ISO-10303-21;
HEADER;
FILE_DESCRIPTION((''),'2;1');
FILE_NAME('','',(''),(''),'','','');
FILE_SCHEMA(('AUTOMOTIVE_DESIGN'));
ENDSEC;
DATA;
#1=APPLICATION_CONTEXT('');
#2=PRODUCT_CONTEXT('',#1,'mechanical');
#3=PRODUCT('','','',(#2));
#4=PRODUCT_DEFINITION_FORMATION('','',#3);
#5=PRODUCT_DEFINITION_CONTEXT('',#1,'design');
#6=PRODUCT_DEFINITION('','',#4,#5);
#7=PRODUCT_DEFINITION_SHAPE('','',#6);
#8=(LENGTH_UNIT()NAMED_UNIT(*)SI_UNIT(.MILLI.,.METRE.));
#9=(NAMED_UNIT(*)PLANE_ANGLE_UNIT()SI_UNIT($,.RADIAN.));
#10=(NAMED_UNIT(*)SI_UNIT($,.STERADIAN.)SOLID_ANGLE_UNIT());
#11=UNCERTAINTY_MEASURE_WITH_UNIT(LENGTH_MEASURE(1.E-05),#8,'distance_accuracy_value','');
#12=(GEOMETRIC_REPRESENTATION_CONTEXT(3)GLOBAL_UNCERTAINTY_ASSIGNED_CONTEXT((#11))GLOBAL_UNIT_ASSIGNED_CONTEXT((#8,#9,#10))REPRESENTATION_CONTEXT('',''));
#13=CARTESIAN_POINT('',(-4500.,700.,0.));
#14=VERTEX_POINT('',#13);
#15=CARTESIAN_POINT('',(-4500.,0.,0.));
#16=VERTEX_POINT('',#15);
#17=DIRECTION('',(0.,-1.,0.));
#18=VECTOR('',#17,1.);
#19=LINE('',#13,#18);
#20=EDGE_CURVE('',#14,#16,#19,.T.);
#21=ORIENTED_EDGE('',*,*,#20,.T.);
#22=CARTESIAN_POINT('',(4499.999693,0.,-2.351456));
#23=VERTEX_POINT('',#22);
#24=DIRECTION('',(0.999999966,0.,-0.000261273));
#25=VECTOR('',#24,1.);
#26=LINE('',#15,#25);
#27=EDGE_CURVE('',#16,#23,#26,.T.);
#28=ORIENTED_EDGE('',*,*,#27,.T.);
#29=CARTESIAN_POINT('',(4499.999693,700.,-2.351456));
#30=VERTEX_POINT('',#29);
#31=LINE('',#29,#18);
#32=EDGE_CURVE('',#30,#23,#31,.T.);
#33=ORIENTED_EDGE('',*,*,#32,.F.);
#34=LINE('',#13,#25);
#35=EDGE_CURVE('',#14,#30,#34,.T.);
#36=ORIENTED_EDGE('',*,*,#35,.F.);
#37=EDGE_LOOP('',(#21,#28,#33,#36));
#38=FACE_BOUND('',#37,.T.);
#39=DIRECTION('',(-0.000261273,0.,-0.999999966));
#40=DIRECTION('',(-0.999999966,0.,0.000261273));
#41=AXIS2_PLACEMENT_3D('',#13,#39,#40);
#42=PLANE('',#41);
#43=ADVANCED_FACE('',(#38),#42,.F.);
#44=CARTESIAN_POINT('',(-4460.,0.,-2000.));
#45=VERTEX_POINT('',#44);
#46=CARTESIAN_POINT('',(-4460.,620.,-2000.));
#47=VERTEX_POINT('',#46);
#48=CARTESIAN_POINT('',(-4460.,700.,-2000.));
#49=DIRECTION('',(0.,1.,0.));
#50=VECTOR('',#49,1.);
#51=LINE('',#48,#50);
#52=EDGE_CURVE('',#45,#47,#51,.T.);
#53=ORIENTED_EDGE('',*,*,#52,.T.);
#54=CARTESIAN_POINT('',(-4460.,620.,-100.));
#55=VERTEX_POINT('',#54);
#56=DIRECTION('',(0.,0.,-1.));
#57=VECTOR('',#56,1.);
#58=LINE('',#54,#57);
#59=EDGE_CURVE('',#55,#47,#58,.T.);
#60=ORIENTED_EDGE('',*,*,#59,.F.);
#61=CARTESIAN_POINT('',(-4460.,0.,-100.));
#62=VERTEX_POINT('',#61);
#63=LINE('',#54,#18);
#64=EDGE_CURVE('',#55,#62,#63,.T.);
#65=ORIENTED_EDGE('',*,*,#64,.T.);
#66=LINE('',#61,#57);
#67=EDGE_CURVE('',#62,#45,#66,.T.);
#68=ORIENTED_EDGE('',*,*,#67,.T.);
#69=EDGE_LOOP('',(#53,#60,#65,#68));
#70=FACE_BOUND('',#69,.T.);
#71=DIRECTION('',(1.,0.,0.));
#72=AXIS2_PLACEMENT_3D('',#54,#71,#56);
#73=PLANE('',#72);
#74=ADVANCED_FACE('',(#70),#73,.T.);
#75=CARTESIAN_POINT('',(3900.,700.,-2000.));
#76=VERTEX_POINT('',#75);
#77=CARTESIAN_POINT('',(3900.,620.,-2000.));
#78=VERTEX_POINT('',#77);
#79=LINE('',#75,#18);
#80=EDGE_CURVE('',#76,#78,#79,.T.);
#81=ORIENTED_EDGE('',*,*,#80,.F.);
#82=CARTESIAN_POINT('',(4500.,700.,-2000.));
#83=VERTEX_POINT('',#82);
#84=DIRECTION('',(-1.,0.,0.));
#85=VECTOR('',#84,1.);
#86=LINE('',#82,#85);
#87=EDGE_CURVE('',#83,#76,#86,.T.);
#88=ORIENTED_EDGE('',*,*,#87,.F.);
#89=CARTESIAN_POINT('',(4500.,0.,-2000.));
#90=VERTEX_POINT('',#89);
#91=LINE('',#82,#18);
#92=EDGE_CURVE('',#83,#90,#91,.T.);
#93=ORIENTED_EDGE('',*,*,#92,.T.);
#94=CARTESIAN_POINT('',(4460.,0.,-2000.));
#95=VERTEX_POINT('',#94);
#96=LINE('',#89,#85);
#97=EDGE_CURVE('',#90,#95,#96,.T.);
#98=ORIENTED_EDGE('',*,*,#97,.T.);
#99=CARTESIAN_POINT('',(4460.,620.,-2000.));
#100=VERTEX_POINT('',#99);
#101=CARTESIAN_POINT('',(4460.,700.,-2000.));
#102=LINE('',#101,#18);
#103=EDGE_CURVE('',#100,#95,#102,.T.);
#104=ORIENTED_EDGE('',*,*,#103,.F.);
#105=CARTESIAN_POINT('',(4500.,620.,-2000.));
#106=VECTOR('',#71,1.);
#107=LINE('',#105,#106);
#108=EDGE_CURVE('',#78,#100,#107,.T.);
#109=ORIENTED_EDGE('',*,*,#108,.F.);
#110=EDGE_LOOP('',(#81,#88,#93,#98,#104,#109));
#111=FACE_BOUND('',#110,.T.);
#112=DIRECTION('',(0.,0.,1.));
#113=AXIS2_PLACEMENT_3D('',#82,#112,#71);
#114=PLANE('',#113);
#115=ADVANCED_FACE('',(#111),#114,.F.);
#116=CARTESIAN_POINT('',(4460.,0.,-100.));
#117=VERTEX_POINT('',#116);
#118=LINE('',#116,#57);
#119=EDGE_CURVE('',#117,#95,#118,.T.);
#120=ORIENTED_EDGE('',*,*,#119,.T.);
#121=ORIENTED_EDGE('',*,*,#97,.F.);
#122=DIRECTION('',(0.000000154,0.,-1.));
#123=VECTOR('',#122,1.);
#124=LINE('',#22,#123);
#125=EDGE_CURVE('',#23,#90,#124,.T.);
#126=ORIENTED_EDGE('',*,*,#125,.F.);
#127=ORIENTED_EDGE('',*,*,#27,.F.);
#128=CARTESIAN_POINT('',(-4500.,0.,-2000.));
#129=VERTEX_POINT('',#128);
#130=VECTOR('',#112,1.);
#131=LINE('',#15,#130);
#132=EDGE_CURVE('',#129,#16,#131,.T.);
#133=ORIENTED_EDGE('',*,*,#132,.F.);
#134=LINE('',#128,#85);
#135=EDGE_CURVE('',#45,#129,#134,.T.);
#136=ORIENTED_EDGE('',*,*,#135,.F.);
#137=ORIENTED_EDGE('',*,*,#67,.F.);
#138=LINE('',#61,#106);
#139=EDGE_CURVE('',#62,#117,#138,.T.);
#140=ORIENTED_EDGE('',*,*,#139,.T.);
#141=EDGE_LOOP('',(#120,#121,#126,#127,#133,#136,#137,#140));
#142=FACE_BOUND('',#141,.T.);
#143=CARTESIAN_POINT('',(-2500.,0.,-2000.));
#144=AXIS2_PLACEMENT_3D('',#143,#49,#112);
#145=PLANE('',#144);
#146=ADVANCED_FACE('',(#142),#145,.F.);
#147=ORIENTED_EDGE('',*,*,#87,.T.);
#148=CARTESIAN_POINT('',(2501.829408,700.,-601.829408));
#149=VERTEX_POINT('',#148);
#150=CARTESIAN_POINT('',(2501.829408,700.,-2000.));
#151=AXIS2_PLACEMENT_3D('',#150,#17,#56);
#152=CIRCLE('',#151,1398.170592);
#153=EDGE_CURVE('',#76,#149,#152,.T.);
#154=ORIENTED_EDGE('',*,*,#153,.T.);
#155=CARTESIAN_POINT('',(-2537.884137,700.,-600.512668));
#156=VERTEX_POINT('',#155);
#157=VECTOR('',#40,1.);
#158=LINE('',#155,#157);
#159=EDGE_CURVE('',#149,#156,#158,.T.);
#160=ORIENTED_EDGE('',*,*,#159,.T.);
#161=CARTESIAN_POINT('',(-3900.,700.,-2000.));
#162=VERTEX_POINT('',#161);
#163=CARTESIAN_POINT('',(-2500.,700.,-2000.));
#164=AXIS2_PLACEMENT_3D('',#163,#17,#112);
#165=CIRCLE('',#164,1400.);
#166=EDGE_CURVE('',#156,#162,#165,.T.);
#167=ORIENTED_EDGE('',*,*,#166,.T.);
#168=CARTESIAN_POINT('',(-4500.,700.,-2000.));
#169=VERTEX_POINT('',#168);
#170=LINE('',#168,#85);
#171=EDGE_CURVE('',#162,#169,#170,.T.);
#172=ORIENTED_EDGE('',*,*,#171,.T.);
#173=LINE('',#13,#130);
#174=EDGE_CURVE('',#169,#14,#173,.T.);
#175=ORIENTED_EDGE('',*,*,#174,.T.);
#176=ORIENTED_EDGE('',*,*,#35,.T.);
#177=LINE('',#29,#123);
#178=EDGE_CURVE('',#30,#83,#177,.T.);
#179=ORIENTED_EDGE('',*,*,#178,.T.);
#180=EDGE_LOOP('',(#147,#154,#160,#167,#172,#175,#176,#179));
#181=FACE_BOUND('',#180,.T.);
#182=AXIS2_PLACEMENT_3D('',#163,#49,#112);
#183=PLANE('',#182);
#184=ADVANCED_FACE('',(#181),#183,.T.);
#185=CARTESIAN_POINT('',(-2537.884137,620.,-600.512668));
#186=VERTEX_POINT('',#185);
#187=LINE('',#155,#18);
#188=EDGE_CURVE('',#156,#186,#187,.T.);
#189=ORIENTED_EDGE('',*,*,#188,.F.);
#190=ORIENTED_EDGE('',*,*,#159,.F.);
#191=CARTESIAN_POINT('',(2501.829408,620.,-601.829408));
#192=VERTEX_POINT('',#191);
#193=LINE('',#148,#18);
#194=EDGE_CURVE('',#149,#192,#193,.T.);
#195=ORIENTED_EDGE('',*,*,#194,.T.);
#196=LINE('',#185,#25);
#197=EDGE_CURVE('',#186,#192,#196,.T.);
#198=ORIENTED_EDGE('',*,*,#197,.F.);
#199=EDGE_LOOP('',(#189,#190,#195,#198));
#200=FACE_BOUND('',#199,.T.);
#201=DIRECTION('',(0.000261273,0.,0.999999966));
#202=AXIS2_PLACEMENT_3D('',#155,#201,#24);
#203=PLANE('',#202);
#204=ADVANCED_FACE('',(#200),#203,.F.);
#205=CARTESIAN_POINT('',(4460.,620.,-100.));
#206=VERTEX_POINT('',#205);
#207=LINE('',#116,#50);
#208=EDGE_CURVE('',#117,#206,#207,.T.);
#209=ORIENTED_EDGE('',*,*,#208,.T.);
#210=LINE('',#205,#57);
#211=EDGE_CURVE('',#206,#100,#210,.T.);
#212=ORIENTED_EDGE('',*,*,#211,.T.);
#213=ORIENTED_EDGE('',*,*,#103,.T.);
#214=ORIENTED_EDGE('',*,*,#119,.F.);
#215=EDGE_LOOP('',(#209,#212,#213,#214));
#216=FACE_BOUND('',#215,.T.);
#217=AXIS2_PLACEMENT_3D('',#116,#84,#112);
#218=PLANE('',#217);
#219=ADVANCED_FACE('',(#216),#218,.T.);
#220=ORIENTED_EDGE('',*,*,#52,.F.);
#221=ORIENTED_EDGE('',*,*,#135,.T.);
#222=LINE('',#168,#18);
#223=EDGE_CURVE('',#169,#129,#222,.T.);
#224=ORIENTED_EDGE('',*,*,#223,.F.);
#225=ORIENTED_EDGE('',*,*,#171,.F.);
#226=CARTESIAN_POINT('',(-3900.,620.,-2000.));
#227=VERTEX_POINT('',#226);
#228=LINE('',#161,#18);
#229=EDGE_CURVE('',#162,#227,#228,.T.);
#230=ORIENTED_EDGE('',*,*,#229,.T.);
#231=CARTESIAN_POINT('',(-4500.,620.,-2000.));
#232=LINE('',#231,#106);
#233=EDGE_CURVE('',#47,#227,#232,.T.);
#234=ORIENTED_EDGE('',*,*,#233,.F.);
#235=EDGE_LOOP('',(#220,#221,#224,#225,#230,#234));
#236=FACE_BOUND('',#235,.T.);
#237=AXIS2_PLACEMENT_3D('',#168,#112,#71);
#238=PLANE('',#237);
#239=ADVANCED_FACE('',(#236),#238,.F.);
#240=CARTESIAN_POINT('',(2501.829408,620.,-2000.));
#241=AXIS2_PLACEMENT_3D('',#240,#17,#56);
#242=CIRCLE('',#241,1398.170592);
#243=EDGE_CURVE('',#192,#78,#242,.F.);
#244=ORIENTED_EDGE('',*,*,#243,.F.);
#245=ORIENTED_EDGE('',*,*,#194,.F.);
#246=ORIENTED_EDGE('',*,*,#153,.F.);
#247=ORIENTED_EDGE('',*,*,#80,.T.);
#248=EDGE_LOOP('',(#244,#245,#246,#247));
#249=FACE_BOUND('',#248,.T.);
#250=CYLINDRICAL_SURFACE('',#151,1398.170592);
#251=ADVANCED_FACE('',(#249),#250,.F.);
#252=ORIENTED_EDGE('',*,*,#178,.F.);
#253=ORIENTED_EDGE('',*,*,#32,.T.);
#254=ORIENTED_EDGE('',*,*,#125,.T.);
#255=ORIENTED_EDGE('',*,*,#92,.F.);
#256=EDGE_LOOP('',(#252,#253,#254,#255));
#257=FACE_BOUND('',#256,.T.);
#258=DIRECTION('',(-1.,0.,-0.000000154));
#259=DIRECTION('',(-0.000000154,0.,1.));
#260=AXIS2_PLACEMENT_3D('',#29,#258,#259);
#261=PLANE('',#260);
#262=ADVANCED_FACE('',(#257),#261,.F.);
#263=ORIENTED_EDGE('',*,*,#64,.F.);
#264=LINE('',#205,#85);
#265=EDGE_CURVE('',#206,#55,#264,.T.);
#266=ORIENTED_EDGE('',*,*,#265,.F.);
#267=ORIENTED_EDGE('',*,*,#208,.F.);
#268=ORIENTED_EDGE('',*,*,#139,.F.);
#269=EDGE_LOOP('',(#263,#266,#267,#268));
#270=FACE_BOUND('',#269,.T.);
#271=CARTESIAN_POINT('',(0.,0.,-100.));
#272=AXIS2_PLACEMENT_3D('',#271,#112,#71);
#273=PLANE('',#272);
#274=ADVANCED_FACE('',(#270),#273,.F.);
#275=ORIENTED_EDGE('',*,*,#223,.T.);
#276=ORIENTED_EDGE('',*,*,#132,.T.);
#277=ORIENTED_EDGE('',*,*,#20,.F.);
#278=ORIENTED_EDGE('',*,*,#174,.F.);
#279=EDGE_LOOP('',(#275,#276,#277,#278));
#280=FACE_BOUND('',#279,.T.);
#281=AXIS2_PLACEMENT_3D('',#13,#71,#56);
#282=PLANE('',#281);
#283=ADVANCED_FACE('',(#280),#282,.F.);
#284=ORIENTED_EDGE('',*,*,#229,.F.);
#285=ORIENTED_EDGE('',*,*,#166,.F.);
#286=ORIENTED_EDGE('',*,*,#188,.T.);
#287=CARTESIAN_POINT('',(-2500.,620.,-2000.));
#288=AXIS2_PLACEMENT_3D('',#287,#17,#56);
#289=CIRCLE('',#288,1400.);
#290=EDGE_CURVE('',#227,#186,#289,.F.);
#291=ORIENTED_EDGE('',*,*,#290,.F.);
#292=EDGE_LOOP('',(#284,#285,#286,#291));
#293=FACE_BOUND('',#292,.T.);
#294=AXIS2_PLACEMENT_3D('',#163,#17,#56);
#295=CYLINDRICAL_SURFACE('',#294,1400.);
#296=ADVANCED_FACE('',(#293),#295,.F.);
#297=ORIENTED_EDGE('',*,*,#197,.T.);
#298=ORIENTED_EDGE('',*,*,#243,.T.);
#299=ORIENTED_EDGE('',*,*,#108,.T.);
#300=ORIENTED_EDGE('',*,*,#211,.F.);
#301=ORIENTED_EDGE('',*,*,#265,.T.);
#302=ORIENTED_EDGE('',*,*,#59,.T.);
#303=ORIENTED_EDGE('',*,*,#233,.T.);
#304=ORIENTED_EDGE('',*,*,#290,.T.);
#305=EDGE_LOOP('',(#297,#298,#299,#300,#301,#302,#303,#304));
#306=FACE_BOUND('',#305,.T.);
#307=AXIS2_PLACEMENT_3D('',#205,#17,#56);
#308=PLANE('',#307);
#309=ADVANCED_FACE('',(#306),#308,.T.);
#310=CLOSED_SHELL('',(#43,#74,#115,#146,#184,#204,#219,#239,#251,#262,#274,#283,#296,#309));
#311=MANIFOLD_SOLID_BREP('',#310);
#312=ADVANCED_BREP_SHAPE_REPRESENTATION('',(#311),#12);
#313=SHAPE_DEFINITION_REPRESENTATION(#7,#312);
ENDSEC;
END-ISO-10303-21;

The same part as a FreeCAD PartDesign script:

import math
import FreeCAD as App
import Part
import Sketcher
from FreeCAD import Vector
Q = App.Units.Quantity

doc = App.newDocument("Part")
body = doc.addObject("PartDesign::Body", "Body")

# Sketch on XZ plane
sketch1 = body.newObject("Sketcher::SketchObject", "Sketch")
sketch1.AttachmentSupport = (doc.getObject("XZ_Plane"), [""])
sketch1.MapMode = "FlatFace"
sketch1.addGeometry([
    Part.LineSegment(Vector(-4500, 0, 0), Vector(4500, -2, 0)),  # 0
    Part.LineSegment(Vector(4500, -2, 0), Vector(4500, -2000, 0)),  # 1
    Part.LineSegment(Vector(4500, -2000, 0), Vector(3900, -2000, 0)),  # 2
    Part.ArcOfCircle(Part.Circle(Vector(2502, -2000, 0), Vector(0, 0, 1), 1398), math.radians(0), math.radians(90)),  # 3
    Part.LineSegment(Vector(2502, -602, 0), Vector(-2538, -601, 0)),  # 4
    Part.ArcOfCircle(Part.Circle(Vector(-2500, -2000, 0), Vector(0, 0, 1), 1400), math.radians(92), math.radians(180)),  # 5
    Part.LineSegment(Vector(-3900, -2000, 0), Vector(-4500, -2000, 0)),  # 6
    Part.LineSegment(Vector(-4500, -2000, 0), Vector(-4500, 0, 0)),  # 7
], False)
sketch1.addConstraint([
    Sketcher.Constraint("Coincident", 0, 2, 1, 1),
    Sketcher.Constraint("Coincident", 1, 2, 2, 1),
    Sketcher.Constraint("Coincident", 2, 2, 3, 1),
    Sketcher.Constraint("Coincident", 3, 2, 4, 1),
    Sketcher.Constraint("Coincident", 4, 2, 5, 1),
    Sketcher.Constraint("Coincident", 5, 2, 6, 1),
    Sketcher.Constraint("Coincident", 6, 2, 7, 1),
    Sketcher.Constraint("Coincident", 7, 2, 0, 1),
    Sketcher.Constraint("Horizontal", 2),
    Sketcher.Constraint("Horizontal", 6),
    Sketcher.Constraint("Vertical", 7),
    Sketcher.Constraint("Symmetric", 1, 2, 6, 2, -2),
    Sketcher.Constraint("PointOnObject", 7, 2, -1),
    Sketcher.Constraint("Parallel", 0, 4),
    Sketcher.Constraint("Horizontal", 3, 3, 5, 3),
    Sketcher.Constraint("Horizontal", 5, 3, 1, 2),
    Sketcher.Constraint("Equal", 2, 6),
    Sketcher.Constraint("Radius", 5, Q("1400 mm")),
    Sketcher.Constraint("DistanceX", 2, 2, 2, 1, Q("600 mm")),
    Sketcher.Constraint("DistanceY", 7, 1, 7, 2, Q("2000 mm")),
    Sketcher.Constraint("Angle", 1, Q("-89.999991 deg")),
    Sketcher.Constraint("Distance", 0, Q("9000 mm")),
    Sketcher.Constraint("Radius", 3, Q("1398.170592 mm")),
    Sketcher.Constraint("DistanceY", 4, 2, -1, 1, Q("600.512668 mm")),
    Sketcher.Constraint("Distance", 4, Q("5039.713717 mm")),
])
pad1 = body.newObject("PartDesign::Pad", "Pad")
pad1.Profile = sketch1
pad1.Length = 700
pad1.Reversed = True

# Sketch on XY plane
sketch2 = body.newObject("Sketcher::SketchObject", "Sketch001")
sketch2.AttachmentSupport = (doc.getObject("XY_Plane"), [""])
sketch2.MapMode = "FlatFace"
sketch2.AttachmentOffset = App.Placement(Vector(0, 0, -2500), App.Rotation())
sketch2.addGeometry([
    Part.LineSegment(Vector(-4460, 620, 0), Vector(-4460, 0, 0)),
    Part.LineSegment(Vector(-4460, 0, 0), Vector(4460, 0, 0)),
    Part.LineSegment(Vector(4460, 0, 0), Vector(4460, 620, 0)),
    Part.LineSegment(Vector(4460, 620, 0), Vector(-4460, 620, 0)),
], False)
sketch2.addConstraint([
    Sketcher.Constraint("Coincident", 0, 2, 1, 1),
    Sketcher.Constraint("Coincident", 1, 2, 2, 1),
    Sketcher.Constraint("Coincident", 2, 2, 3, 1),
    Sketcher.Constraint("Coincident", 3, 2, 0, 1),
    Sketcher.Constraint("Vertical", 0),
    Sketcher.Constraint("Horizontal", 1),
    Sketcher.Constraint("Vertical", 2),
    Sketcher.Constraint("Horizontal", 3),
    Sketcher.Constraint("Symmetric", 0, 2, 1, 2, -1, 1),
    Sketcher.Constraint("DistanceX", 1, 1, 1, 2, Q("8920 mm")),
    Sketcher.Constraint("DistanceY", 0, 2, 0, 1, Q("620 mm")),
])
pocket1 = body.newObject("PartDesign::Pocket", "Pocket")
pocket1.Profile = sketch2
pocket1.Length = 2400
pocket1.Reversed = True

doc.recompute()
